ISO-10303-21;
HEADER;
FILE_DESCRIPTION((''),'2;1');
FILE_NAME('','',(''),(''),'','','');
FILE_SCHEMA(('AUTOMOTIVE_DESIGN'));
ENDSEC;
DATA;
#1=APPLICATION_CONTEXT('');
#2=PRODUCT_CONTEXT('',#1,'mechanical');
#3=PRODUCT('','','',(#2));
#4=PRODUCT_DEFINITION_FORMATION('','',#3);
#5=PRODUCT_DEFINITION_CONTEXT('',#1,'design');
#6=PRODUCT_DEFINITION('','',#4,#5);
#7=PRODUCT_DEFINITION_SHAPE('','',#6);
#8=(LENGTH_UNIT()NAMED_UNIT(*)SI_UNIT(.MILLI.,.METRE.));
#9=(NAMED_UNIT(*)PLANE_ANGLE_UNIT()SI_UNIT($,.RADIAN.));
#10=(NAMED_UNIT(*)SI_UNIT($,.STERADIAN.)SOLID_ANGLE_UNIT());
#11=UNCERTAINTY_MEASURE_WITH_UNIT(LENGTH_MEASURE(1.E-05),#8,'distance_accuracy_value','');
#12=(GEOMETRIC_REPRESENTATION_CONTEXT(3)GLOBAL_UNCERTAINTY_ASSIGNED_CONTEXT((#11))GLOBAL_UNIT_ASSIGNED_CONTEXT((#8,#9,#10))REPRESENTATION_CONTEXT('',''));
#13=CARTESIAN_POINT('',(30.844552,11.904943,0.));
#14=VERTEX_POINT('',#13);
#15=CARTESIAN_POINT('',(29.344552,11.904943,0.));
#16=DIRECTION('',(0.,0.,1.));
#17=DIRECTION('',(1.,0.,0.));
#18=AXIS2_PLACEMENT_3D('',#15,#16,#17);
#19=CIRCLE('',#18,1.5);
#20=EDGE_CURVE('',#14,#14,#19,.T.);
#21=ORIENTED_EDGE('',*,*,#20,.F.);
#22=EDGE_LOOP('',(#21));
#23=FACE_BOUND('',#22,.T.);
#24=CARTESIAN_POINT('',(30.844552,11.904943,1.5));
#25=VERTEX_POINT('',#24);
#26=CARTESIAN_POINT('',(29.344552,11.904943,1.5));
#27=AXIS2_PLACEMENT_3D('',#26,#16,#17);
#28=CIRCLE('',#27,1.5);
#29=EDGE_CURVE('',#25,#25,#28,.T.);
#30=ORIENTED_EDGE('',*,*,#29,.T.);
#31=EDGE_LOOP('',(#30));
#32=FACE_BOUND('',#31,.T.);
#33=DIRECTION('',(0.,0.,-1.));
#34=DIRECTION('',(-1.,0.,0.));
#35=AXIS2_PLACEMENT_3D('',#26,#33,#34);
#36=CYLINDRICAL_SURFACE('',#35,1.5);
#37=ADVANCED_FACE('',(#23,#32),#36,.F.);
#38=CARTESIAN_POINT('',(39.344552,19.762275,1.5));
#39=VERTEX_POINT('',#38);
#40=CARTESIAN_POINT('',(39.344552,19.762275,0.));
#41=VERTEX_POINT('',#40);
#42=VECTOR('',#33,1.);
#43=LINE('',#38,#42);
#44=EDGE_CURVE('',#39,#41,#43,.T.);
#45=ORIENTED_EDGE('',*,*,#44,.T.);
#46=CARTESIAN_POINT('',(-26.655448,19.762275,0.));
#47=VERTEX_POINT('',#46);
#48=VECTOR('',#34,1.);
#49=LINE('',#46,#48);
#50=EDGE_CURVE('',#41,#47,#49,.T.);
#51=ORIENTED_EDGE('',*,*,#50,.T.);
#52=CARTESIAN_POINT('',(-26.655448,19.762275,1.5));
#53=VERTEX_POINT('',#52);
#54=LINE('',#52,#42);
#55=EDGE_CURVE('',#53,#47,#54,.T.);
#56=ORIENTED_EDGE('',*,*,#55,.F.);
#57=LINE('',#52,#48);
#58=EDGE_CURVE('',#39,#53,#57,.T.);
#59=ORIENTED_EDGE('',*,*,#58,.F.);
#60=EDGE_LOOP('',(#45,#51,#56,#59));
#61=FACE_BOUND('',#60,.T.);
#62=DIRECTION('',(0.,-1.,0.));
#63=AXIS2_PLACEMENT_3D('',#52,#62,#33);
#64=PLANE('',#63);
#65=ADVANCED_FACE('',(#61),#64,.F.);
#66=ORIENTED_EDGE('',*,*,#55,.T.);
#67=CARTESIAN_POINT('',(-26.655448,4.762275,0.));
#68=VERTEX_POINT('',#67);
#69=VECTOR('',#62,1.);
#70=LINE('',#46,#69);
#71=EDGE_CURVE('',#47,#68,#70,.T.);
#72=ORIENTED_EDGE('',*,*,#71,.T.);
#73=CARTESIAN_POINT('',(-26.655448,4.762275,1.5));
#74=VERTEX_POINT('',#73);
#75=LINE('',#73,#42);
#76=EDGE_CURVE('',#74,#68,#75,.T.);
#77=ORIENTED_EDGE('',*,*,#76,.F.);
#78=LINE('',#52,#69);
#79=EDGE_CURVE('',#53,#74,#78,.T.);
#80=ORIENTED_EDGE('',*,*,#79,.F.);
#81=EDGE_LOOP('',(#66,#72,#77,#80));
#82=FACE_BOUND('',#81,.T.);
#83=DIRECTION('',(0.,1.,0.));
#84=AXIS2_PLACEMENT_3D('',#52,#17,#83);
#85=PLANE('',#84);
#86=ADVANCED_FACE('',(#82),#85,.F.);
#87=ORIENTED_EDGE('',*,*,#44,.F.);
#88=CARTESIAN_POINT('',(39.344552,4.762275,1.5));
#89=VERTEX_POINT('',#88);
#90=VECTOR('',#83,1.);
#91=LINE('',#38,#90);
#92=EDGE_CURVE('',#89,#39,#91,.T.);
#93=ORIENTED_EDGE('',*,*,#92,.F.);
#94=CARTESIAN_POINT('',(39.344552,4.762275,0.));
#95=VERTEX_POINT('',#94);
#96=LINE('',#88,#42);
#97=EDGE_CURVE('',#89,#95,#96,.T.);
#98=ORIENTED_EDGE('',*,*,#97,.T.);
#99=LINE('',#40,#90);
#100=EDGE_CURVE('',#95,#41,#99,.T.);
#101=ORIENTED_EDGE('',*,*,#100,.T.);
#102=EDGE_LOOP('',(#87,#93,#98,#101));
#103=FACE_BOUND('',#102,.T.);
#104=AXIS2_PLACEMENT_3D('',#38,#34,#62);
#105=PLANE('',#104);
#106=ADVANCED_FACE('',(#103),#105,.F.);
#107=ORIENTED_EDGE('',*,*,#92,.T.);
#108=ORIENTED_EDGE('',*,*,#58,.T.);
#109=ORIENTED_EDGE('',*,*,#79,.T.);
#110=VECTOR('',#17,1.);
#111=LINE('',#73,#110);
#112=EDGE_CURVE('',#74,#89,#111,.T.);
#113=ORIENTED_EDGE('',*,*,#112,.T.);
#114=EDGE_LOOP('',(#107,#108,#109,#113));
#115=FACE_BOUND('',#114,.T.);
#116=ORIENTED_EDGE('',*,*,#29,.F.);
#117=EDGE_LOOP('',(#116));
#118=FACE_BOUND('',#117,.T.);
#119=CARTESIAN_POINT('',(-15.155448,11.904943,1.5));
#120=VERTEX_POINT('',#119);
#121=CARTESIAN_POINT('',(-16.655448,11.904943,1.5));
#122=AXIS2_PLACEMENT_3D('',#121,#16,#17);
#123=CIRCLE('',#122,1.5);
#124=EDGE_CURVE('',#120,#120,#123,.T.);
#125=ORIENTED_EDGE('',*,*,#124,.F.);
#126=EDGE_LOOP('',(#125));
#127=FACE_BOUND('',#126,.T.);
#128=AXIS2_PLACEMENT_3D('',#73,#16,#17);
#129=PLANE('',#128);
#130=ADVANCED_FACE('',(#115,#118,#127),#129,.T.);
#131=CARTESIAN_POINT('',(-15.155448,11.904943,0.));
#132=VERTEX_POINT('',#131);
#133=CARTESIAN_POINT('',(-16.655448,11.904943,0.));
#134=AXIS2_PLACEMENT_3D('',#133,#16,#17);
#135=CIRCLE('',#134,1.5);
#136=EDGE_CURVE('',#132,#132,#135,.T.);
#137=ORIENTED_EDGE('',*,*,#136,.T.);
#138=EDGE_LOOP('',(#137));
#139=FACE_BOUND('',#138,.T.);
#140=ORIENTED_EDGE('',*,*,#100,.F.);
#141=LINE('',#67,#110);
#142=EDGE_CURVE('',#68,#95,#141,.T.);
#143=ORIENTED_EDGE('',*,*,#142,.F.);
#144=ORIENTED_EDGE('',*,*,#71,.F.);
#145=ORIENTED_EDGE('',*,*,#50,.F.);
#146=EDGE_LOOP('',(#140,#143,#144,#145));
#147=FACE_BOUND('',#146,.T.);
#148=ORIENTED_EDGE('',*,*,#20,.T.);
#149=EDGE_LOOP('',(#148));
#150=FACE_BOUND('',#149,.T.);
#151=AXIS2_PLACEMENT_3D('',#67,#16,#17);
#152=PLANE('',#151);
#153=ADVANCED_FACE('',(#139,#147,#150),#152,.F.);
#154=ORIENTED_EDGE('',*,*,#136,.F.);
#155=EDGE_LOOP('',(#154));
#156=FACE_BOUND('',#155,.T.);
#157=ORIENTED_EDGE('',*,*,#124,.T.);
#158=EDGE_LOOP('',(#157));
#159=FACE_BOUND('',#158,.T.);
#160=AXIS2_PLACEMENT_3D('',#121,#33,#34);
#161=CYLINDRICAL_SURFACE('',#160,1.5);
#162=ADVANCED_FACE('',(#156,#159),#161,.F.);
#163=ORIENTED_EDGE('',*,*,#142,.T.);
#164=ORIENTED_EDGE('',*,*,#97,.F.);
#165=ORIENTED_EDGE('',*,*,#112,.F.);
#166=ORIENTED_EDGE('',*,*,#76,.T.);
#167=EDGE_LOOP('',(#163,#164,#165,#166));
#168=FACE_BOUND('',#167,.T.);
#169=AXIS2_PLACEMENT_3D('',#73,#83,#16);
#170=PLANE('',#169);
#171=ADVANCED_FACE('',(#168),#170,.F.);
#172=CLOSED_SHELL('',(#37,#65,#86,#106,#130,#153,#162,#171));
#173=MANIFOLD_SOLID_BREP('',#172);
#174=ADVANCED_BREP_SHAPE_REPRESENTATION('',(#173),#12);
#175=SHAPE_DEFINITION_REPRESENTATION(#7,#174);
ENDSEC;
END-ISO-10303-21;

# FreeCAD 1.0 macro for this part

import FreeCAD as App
import Part
import Sketcher

V = App.Vector
Q = App.Units.Quantity


def add_polygon(sketch, points):
    """Adds a closed chain of lines whose ends are joined by coincident constraints."""
    first, n = sketch.GeometryCount, len(points)
    for a, b in zip(points, points[1:] + points[:1]):
        sketch.addGeometry(Part.LineSegment(App.Vector(*a, 0), App.Vector(*b, 0)), False)
    for i in range(n):
        sketch.addConstraint(Sketcher.Constraint("Coincident", first + i, 2, first + (i + 1) % n, 1))

doc = App.newDocument("Part")
body = doc.addObject("PartDesign::Body", "Body")

# Sketch on XY plane
sketch1 = body.newObject("Sketcher::SketchObject", "Sketch")
sketch1.AttachmentSupport = (doc.getObject("XY_Plane"), [""])
sketch1.MapMode = "FlatFace"
add_polygon(sketch1, [(-26.7, 19.8), (-26.7, 4.8), (39.3, 4.8), (39.3, 19.8)])  # lines 0-3
sketch1.addGeometry(Part.Circle(V(-16.7, 11.9, 0), V(0, 0, 1), 1.5), False)  # 4
sketch1.addGeometry(Part.Circle(V(29.3, 11.9, 0), V(0, 0, 1), 1.5), False)  # 5
sketch1.addConstraint([
    Sketcher.Constraint("Vertical", 0),
    Sketcher.Constraint("Horizontal", 1),
    Sketcher.Constraint("Vertical", 2),
    Sketcher.Constraint("Horizontal", 3),
    Sketcher.Constraint("Equal", 4, 5),
    Sketcher.Constraint("Horizontal", 4, 3, 5, 3),
    Sketcher.Constraint("Diameter", 4, Q("3 mm")),
    Sketcher.Constraint("DistanceX", 1, 1, 1, 2, Q("66 mm")),
    Sketcher.Constraint("DistanceY", 0, 2, 0, 1, Q("15 mm")),
    Sketcher.Constraint("DistanceX", 4, 3, 5, 3, Q("46 mm")),
    Sketcher.Constraint("DistanceX", 0, 2, 4, 3, Q("10 mm")),
    Sketcher.Constraint("DistanceX", 4, 3, -1, 1, Q("16.655448 mm")),
    Sketcher.Constraint("DistanceY", -1, 1, 4, 3, Q("11.904943 mm")),
    Sketcher.Constraint("DistanceY", -1, 1, 0, 2, Q("4.762275 mm")),
])
pad1 = body.newObject("PartDesign::Pad", "Pad")
pad1.Profile = sketch1
pad1.Length = 1.5

doc.recompute()
